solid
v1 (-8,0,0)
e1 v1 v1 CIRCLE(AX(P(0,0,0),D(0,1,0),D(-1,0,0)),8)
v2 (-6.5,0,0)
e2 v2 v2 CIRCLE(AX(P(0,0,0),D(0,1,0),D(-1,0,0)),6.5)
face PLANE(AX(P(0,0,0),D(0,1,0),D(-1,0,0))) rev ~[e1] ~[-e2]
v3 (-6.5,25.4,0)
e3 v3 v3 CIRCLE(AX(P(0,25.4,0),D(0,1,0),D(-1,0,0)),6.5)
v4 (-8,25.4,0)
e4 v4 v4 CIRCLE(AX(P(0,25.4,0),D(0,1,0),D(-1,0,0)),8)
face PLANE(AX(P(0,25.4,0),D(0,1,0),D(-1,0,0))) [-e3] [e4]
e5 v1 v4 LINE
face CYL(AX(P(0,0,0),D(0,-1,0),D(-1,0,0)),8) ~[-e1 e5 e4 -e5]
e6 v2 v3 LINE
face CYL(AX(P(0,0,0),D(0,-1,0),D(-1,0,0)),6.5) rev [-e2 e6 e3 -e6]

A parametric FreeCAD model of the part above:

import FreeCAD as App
import Part
import Sketcher
Q = App.Units.Quantity

doc = App.newDocument("Part")
body = doc.addObject("PartDesign::Body", "Body")

sketch1 = doc.addObject("Sketcher::SketchObject", "Sketch")
body.addObject(sketch1)
sketch1.AttachmentSupport = (doc.XZ_Plane, [""])
sketch1.MapMode = "FlatFace"
sketch1.addGeometry(Part.Circle(App.Vector(0, 0, 0), App.Vector(0, 0, 1), 8), False)
sketch1.addGeometry(Part.Circle(App.Vector(0, 0, 0), App.Vector(0, 0, 1), 6), False)
sketch1.addConstraint(Sketcher.Constraint("Coincident", 0, 3, -1, 1))
sketch1.addConstraint(Sketcher.Constraint("Coincident", 1, 3, -1, 1))
sketch1.addConstraint(Sketcher.Constraint("Diameter", 0, Q("16 mm")))
sketch1.addConstraint(Sketcher.Constraint("Diameter", 1, Q("13 mm")))
pad1 = doc.addObject("PartDesign::Pad", "Pad")
body.addObject(pad1)
pad1.Profile = sketch1
pad1.Length = 25.4
pad1.Reversed = True

doc.recompute()
